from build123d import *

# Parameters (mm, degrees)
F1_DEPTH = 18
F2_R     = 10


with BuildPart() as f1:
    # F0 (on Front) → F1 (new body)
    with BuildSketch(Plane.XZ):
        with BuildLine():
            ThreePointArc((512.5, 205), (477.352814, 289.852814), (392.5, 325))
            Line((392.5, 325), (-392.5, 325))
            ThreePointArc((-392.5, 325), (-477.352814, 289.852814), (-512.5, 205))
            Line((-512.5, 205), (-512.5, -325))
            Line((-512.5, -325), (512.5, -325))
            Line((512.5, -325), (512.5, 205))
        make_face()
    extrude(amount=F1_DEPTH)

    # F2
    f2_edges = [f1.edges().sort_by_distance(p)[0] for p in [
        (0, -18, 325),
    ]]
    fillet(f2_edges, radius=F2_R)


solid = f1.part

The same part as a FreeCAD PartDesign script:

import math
import FreeCAD as App
import Part
import Sketcher
from FreeCAD import Vector
Q = App.Units.Quantity


def edges_at(feature, points):
    """Names of the edges that pass closest to the given points."""
    edges = feature.Shape.Edges
    near = lambda p: min(range(len(edges)), key=lambda i: edges[i].distToShape(Part.Vertex(*p))[0])
    return sorted({f"Edge{near(p) + 1}" for p in points})

doc = App.newDocument("Part")
body = doc.addObject("PartDesign::Body", "Body")

# Sketch on XZ plane
sketch1 = body.newObject("Sketcher::SketchObject", "Sketch")
sketch1.AttachmentSupport = (doc.getObject("XZ_Plane"), [""])
sketch1.MapMode = "FlatFace"
sketch1.addGeometry([
    Part.ArcOfCircle(Part.Circle(Vector(393, 205, 0), Vector(0, 0, 1), 120), math.radians(0), math.radians(90)),  # 0
    Part.LineSegment(Vector(392, 325, 0), Vector(-392, 325, 0)),  # 1
    Part.ArcOfCircle(Part.Circle(Vector(-393, 205, 0), Vector(0, 0, 1), 120), math.radians(90), math.radians(180)),  # 2
    Part.LineSegment(Vector(-512, 205, 0), Vector(-512, -325, 0)),  # 3
    Part.LineSegment(Vector(-512, -325, 0), Vector(512, -325, 0)),  # 4
    Part.LineSegment(Vector(512, -325, 0), Vector(512, 205, 0)),  # 5
], False)
sketch1.addConstraint([
    Sketcher.Constraint("Tangent", 0, 2, 1, 1),
    Sketcher.Constraint("Tangent", 1, 2, 2, 1),
    Sketcher.Constraint("Tangent", 2, 2, 3, 1),
    Sketcher.Constraint("Coincident", 3, 2, 4, 1),
    Sketcher.Constraint("Coincident", 4, 2, 5, 1),
    Sketcher.Constraint("Tangent", 5, 2, 0, 1),
    Sketcher.Constraint("Horizontal", 1),
    Sketcher.Constraint("Vertical", 3),
    Sketcher.Constraint("Horizontal", 4),
    Sketcher.Constraint("Vertical", 5),
    Sketcher.Constraint("Equal", 0, 2),
    Sketcher.Constraint("Radius", 0, Q("119.999999 mm")),
    Sketcher.Constraint("DistanceX", 1, 2, 1, 1, Q("785 mm")),
    Sketcher.Constraint("DistanceY", 3, 2, 3, 1, Q("530 mm")),
    Sketcher.Constraint("DistanceY", -1, 1, 0, 3, Q("205.000001 mm")),
    Sketcher.Constraint("DistanceX", -1, 1, 0, 3, Q("392.500001 mm")),
])
pad1 = body.newObject("PartDesign::Pad", "Pad")
pad1.Profile = sketch1
pad1.Length = 18
doc.recompute()

fillet = body.newObject("PartDesign::Fillet", "Fillet")
fillet.Base = (pad1, edges_at(pad1, [(0, -18, 325)]))
fillet.Radius = 10

doc.recompute()
